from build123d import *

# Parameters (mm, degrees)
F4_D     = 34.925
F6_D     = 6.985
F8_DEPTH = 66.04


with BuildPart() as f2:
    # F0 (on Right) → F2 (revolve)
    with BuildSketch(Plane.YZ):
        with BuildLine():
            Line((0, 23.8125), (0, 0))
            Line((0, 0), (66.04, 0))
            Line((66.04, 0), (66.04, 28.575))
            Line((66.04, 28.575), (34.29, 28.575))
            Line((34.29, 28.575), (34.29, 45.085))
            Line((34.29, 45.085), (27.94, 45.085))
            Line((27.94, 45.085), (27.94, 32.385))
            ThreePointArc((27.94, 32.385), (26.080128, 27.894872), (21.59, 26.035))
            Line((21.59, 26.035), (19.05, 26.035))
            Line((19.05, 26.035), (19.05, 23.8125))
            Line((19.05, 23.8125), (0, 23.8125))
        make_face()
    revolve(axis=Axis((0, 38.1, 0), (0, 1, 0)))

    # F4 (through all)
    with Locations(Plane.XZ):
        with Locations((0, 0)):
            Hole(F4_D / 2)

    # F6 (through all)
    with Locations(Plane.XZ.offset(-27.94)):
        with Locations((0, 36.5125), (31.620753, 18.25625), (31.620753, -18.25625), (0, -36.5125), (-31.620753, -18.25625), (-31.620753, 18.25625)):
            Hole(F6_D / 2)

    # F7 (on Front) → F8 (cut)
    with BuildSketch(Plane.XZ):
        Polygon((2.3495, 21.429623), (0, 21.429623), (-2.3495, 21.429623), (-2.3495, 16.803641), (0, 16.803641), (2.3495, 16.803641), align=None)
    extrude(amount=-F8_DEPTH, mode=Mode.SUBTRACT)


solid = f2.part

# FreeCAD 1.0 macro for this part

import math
import FreeCAD as App
import Part
import Sketcher
from FreeCAD import Vector
Q = App.Units.Quantity


def add_polygon(sketch, points):
    """Adds a closed chain of lines whose ends are joined by coincident constraints."""
    first, n = sketch.GeometryCount, len(points)
    for a, b in zip(points, points[1:] + points[:1]):
        sketch.addGeometry(Part.LineSegment(App.Vector(*a, 0), App.Vector(*b, 0)), False)
    for i in range(n):
        sketch.addConstraint(Sketcher.Constraint("Coincident", first + i, 2, first + (i + 1) % n, 1))

doc = App.newDocument("Part")
params = doc.addObject("Spreadsheet::Sheet", "Params")
for row, (alias, value) in enumerate([
    ("sketch1_radius", "0.25 in"),
    ("sketch1_width", "2.6 in"),
    ("sketch1_width2", "0.1 in"),
    ("sketch1_height", "0.5 in"),
    ("sketch1_width3", "1.25 in"),
    ("revolution_angle", "360 deg"),
    ("sketch2_diameter", "1.375 in"),
    ("hole_diameter", "1.375 in"),
    ("sketch3_diameter", "0.275 in"),
    ("hole2_diameter", "0.275 in"),
    ("sketch4_width", "0.185 in"),
    ("pocket1_length", "2.6 in"),
], start=1):
    params.set(f"A{row}", alias)
    params.set(f"B{row}", "=" + value)
    params.setAlias(f"B{row}", alias)

body = doc.addObject("PartDesign::Body", "Body")

# Sketch on YZ plane
sketch1 = body.newObject("Sketcher::SketchObject", "Sketch")
sketch1.AttachmentSupport = (doc.getObject("YZ_Plane"), [""])
sketch1.MapMode = "FlatFace"
sketch1.addGeometry([
    Part.LineSegment(Vector(0, 23.8, 0), Vector(0, 0, 0)),  # 0
    Part.LineSegment(Vector(0, 0, 0), Vector(66, 0, 0)),  # 1
    Part.LineSegment(Vector(66, 0, 0), Vector(66, 28.6, 0)),  # 2
    Part.LineSegment(Vector(66, 28.6, 0), Vector(34.3, 28.6, 0)),  # 3
    Part.LineSegment(Vector(34.3, 28.6, 0), Vector(34.3, 45.1, 0)),  # 4
    Part.LineSegment(Vector(34.3, 45.1, 0), Vector(27.9, 45.1, 0)),  # 5
    Part.LineSegment(Vector(27.9, 45.1, 0), Vector(27.9, 32.4, 0)),  # 6
    Part.ArcOfCircle(Part.Circle(Vector(21.6, 32.4, 0), Vector(0, 0, 1), 6.4), math.radians(-90), math.radians(0)),  # 7
    Part.LineSegment(Vector(21.6, 26, 0), Vector(19.1, 26, 0)),  # 8
    Part.LineSegment(Vector(19.1, 26, 0), Vector(19.1, 23.8, 0)),  # 9
    Part.LineSegment(Vector(19.1, 23.8, 0), Vector(0, 23.8, 0)),  # 10
], False)
sketch1.addConstraint([
    Sketcher.Constraint("Coincident", 0, 2, 1, 1),
    Sketcher.Constraint("Coincident", 1, 2, 2, 1),
    Sketcher.Constraint("Coincident", 2, 2, 3, 1),
    Sketcher.Constraint("Coincident", 3, 2, 4, 1),
    Sketcher.Constraint("Coincident", 4, 2, 5, 1),
    Sketcher.Constraint("Coincident", 5, 2, 6, 1),
    Sketcher.Constraint("Tangent", 6, 2, 7, 2),
    Sketcher.Constraint("Tangent", 7, 1, 8, 1),
    Sketcher.Constraint("Coincident", 8, 2, 9, 1),
    Sketcher.Constraint("Coincident", 9, 2, 10, 1),
    Sketcher.Constraint("Coincident", 10, 2, 0, 1),
    Sketcher.Constraint("Vertical", 0),
    Sketcher.Constraint("Horizontal", 1),
    Sketcher.Constraint("Vertical", 2),
    Sketcher.Constraint("Horizontal", 3),
    Sketcher.Constraint("Vertical", 4),
    Sketcher.Constraint("Horizontal", 5),
    Sketcher.Constraint("Vertical", 6),
    Sketcher.Constraint("Horizontal", 8),
    Sketcher.Constraint("Vertical", 9),
    Sketcher.Constraint("Horizontal", 10),
    Sketcher.Constraint("Coincident", 0, 2, -1, 1),
    Sketcher.Constraint("Radius", 7, Q("0.25 in")),
    Sketcher.Constraint("DistanceX", 1, 1, 1, 2, Q("2.6 in")),
    Sketcher.Constraint("DistanceX", 8, 2, 8, 1, Q("0.1 in")),
    Sketcher.Constraint("DistanceY", 6, 2, 6, 1, Q("0.5 in")),
    Sketcher.Constraint("DistanceX", 3, 2, 3, 1, Q("1.25 in")),
    Sketcher.Constraint("DistanceX", 5, 2, 5, 1, Q("0.25 in")),
    Sketcher.Constraint("DistanceY", 4, 1, 4, 2, Q("0.65 in")),
    Sketcher.Constraint("DistanceY", 0, 2, 0, 1, Q("0.9375 in")),
    Sketcher.Constraint("DistanceY", 2, 1, 2, 2, Q("1.125 in")),
])
sketch1.setExpression("Constraints[22]", "Params.sketch1_radius")
sketch1.setExpression("Constraints[23]", "Params.sketch1_width")
sketch1.setExpression("Constraints[24]", "Params.sketch1_width2")
sketch1.setExpression("Constraints[25]", "Params.sketch1_height")
sketch1.setExpression("Constraints[26]", "Params.sketch1_width3")
revolution = body.newObject("PartDesign::Revolution", "Revolution")
revolution.Profile = sketch1
revolution.ReferenceAxis = (sketch1, ["H_Axis"])
revolution.setExpression("Angle", "Params.revolution_angle")

# Sketch on XZ plane
sketch2 = body.newObject("Sketcher::SketchObject", "Sketch001")
sketch2.AttachmentSupport = (doc.getObject("XZ_Plane"), [""])
sketch2.MapMode = "FlatFace"
sketch2.addGeometry(Part.Circle(Vector(0, 0, 0), Vector(0, 0, 1), 17), False)
sketch2.addConstraint([
    Sketcher.Constraint("Coincident", 0, 3, -1, 1),
    Sketcher.Constraint("Diameter", 0, Q("1.375 in")),
])
sketch2.setExpression("Constraints[1]", "Params.sketch2_diameter")
doc.recompute()
hole = body.newObject("PartDesign::Hole", "Hole")
hole.Profile = sketch2
hole.ThreadType = "None"
hole.setExpression("Diameter", "Params.hole_diameter")
hole.DepthType = "ThroughAll"

# Sketch on XZ plane
sketch3 = body.newObject("Sketcher::SketchObject", "Sketch002")
sketch3.AttachmentSupport = (doc.getObject("XZ_Plane"), [""])
sketch3.MapMode = "FlatFace"
sketch3.AttachmentOffset = App.Placement(Vector(0, 0, -1.1 * 25.4), App.Rotation())
sketch3.addGeometry([
    Part.Circle(Vector(0, 36.5, 0), Vector(0, 0, 1), 3.5),  # 0
    Part.Circle(Vector(31.6, 18.3, 0), Vector(0, 0, 1), 3.5),  # 1
    Part.Circle(Vector(31.6, -18.3, 0), Vector(0, 0, 1), 3.5),  # 2
    Part.Circle(Vector(0, -36.5, 0), Vector(0, 0, 1), 3.5),  # 3
    Part.Circle(Vector(-31.6, -18.3, 0), Vector(0, 0, 1), 3.5),  # 4
    Part.Circle(Vector(-31.6, 18.3, 0), Vector(0, 0, 1), 3.5),  # 5
], False)
sketch3.addConstraint([
    Sketcher.Constraint("Equal", 0, 1),
    Sketcher.Constraint("Equal", 1, 2),
    Sketcher.Constraint("Equal", 2, 3),
    Sketcher.Constraint("Equal", 3, 4),
    Sketcher.Constraint("Equal", 4, 5),
    Sketcher.Constraint("Symmetric", 0, 3, 3, 3, -1, 1),
    Sketcher.Constraint("Symmetric", 1, 3, 4, 3, -1, 1),
    Sketcher.Constraint("Symmetric", 2, 3, 5, 3, -1, 1),
    Sketcher.Constraint("Symmetric", 2, 3, 4, 3, -2),
    Sketcher.Constraint("PointOnObject", 0, 3, -2),
    Sketcher.Constraint("Diameter", 0, Q("0.275 in")),
    Sketcher.Constraint("DistanceY", -1, 1, 0, 3, Q("1.4375 in")),
    Sketcher.Constraint("DistanceY", -1, 1, 1, 3, Q("0.71875 in")),
    Sketcher.Constraint("DistanceX", -1, 1, 1, 3, 31.620753),
])
sketch3.setExpression("Constraints[10]", "Params.sketch3_diameter")
doc.recompute()
hole2 = body.newObject("PartDesign::Hole", "Hole001")
hole2.Profile = sketch3
hole2.ThreadType = "None"
hole2.setExpression("Diameter", "Params.hole2_diameter")
hole2.DepthType = "ThroughAll"

# Sketch on XZ plane
sketch4 = body.newObject("Sketcher::SketchObject", "Sketch003")
sketch4.AttachmentSupport = (doc.getObject("XZ_Plane"), [""])
sketch4.MapMode = "FlatFace"
add_polygon(sketch4, [(2.3, 21.4), (-2.3, 21.4), (-2.3, 16.8), (2.3, 16.8)])  # lines 0-3
sketch4.addConstraint([
    Sketcher.Constraint("Horizontal", 0),
    Sketcher.Constraint("Vertical", 1),
    Sketcher.Constraint("Horizontal", 2),
    Sketcher.Constraint("Vertical", 3),
    Sketcher.Constraint("DistanceX", 0, 2, 0, 1, Q("0.185 in")),
    Sketcher.Constraint("DistanceX", 0, 2, -1, 1, Q("0.0925 in")),
    Sketcher.Constraint("DistanceY", 1, 2, 1, 1, 4.625982),
    Sketcher.Constraint("DistanceY", -1, 1, 1, 2, 16.803641),
])
sketch4.setExpression("Constraints[8]", "Params.sketch4_width")
pocket1 = body.newObject("PartDesign::Pocket", "Pocket")
pocket1.Profile = sketch4
pocket1.setExpression("Length", "Params.pocket1_length")

doc.recompute()
